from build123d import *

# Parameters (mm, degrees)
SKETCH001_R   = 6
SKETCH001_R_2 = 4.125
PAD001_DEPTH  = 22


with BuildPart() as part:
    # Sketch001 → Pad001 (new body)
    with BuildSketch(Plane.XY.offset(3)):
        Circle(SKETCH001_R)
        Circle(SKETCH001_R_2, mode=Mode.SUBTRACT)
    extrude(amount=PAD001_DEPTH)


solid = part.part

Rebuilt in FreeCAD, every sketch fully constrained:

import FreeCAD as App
import Part
import Sketcher
from FreeCAD import Vector

doc = App.newDocument("Part")
body = doc.addObject("PartDesign::Body", "Body")

# Sketch on XY plane
sketch1 = body.newObject("Sketcher::SketchObject", "Sketch")
sketch1.AttachmentSupport = (doc.getObject("XY_Plane"), [""])
sketch1.MapMode = "FlatFace"
sketch1.AttachmentOffset = App.Placement(Vector(0, 0, 3), App.Rotation())
sketch1.addGeometry(Part.Circle(Vector(0, 0, 0), Vector(0, 0, 1), 6), False)
sketch1.addGeometry(Part.Circle(Vector(0, 0, 0), Vector(0, 0, 1), 4.1), False)
sketch1.addConstraint(Sketcher.Constraint("Coincident", 0, 3, -1, 1))
sketch1.addConstraint(Sketcher.Constraint("Coincident", 1, 3, -1, 1))
sketch1.addConstraint(Sketcher.Constraint("Diameter", 0, 12.0))
sketch1.addConstraint(Sketcher.Constraint("Diameter", 1, 8.25))
pad1 = body.newObject("PartDesign::Pad", "Pad")
pad1.Profile = sketch1
pad1.Length = 22

doc.recompute()
